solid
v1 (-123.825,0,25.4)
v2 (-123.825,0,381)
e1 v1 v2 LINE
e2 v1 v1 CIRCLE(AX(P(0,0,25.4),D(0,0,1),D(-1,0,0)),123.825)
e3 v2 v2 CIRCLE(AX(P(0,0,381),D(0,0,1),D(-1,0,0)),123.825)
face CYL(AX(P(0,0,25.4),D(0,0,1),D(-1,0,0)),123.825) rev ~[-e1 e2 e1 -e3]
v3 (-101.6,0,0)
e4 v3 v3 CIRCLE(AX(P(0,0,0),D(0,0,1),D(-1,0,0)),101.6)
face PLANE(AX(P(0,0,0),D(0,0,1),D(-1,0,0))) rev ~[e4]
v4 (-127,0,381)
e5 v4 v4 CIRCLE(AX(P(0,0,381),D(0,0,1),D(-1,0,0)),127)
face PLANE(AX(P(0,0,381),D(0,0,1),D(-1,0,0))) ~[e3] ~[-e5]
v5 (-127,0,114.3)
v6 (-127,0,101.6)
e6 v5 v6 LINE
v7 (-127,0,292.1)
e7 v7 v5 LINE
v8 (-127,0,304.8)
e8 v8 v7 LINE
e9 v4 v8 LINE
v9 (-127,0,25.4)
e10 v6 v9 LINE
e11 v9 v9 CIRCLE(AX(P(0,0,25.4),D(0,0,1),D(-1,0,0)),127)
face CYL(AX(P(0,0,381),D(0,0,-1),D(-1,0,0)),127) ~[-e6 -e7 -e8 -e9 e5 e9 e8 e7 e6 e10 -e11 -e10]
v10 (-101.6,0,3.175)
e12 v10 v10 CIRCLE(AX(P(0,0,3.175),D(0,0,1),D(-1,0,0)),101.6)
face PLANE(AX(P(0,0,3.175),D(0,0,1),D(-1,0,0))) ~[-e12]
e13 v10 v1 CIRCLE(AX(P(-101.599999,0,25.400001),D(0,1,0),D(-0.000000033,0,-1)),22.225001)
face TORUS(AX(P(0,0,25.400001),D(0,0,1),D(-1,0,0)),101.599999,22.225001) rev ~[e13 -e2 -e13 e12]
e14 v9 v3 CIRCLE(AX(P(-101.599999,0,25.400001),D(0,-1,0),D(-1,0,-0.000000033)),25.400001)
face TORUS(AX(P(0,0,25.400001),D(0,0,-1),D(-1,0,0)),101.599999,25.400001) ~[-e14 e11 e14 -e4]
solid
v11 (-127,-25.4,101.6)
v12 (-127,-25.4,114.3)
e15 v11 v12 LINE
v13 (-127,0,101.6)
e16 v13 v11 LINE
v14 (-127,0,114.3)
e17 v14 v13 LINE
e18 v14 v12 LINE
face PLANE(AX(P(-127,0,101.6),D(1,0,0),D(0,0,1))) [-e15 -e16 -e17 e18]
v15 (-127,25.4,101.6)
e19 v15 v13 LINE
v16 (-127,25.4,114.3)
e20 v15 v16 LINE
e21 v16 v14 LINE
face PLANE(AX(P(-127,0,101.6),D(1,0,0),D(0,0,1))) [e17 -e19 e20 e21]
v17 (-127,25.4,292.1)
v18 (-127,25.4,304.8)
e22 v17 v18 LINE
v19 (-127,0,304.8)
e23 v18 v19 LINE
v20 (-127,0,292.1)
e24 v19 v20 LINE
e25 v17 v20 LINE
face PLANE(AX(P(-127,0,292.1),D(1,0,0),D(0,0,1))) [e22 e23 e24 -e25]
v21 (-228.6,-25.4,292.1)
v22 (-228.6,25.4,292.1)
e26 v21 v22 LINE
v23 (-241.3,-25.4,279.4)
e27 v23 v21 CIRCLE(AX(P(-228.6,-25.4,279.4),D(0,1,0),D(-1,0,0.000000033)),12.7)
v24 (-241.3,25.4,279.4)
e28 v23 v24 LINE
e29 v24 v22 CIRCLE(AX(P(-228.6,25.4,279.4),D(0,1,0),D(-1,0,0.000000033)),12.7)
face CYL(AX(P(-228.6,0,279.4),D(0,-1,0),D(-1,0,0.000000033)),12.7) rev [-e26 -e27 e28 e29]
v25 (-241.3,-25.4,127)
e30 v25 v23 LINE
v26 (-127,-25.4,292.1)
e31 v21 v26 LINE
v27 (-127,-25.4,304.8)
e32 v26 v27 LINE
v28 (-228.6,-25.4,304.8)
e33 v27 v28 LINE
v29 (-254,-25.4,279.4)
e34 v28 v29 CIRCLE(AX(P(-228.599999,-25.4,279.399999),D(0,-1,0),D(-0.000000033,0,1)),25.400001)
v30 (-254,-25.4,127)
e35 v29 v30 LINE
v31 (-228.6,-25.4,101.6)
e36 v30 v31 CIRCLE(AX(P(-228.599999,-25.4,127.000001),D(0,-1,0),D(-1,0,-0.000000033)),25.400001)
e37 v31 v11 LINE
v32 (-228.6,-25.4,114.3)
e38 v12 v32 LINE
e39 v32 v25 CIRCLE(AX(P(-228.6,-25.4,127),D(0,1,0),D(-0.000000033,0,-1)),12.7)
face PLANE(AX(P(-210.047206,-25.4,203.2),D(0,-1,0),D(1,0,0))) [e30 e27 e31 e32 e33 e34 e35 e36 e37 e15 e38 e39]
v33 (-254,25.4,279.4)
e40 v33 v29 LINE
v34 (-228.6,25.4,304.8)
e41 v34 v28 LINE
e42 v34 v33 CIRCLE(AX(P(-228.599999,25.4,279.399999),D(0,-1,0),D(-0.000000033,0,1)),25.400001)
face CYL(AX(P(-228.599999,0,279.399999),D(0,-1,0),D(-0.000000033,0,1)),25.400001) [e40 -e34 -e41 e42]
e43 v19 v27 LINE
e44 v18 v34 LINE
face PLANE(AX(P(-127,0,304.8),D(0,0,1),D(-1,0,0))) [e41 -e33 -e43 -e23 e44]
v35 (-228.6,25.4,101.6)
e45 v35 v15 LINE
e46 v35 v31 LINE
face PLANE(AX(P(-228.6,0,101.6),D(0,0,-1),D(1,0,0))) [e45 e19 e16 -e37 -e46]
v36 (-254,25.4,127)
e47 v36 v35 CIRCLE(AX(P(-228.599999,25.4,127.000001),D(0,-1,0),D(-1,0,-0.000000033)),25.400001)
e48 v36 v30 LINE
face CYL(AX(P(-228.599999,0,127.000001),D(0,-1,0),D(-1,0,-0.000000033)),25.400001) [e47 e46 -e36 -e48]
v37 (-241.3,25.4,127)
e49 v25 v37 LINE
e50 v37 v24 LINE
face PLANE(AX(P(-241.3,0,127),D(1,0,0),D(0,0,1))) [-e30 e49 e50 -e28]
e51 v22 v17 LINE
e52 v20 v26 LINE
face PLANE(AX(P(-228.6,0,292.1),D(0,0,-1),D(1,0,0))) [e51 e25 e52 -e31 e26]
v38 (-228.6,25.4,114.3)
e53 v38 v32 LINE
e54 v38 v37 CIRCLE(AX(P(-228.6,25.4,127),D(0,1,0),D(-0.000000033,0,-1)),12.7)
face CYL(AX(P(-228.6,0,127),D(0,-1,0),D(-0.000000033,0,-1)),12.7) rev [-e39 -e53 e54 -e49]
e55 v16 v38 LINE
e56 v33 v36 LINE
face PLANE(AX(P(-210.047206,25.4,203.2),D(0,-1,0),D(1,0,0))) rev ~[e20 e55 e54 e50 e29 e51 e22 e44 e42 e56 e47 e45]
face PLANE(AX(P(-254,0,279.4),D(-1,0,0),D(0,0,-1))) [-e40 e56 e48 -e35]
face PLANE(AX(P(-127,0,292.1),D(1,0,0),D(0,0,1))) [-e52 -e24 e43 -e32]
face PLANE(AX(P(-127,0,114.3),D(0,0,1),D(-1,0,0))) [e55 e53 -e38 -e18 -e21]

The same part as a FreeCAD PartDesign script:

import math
import FreeCAD as App
import Part
import Sketcher
from FreeCAD import Vector
Q = App.Units.Quantity

doc = App.newDocument("Part")
body = doc.addObject("PartDesign::Body", "Body")
body.AllowCompound = True

# Sketch on XZ plane
sketch1 = doc.addObject("Sketcher::SketchObject", "Sketch")
body.addObject(sketch1)
sketch1.AttachmentSupport = (doc.XZ_Plane, [""])
sketch1.MapMode = "FlatFace"
sketch1.addGeometry([
    Part.LineSegment(Vector(-101.6, 0, 0), Vector(0, 0, 0)),  # 0
    Part.LineSegment(Vector(0, 0, 0), Vector(0, 3.2, 0)),  # 1
    Part.LineSegment(Vector(0, 3.2, 0), Vector(-101.6, 3.2, 0)),  # 2
    Part.ArcOfCircle(Part.Circle(Vector(-101.6, 25.4, 0), Vector(0, 0, 1), 22.2), math.radians(-180), math.radians(-90)),  # 3
    Part.LineSegment(Vector(-123.8, 25.4, 0), Vector(-123.8, 381, 0)),  # 4
    Part.LineSegment(Vector(-123.8, 381, 0), Vector(-127, 381, 0)),  # 5
    Part.LineSegment(Vector(-127, 381, 0), Vector(-127, 25.4, 0)),  # 6
    Part.ArcOfCircle(Part.Circle(Vector(-101.6, 25.4, 0), Vector(0, 0, 1), 25.4), math.radians(-180), math.radians(-90)),  # 7
], False)
sketch1.addConstraint([
    Sketcher.Constraint("Coincident", 0, 2, 1, 1),
    Sketcher.Constraint("Coincident", 1, 2, 2, 1),
    Sketcher.Constraint("Tangent", 2, 2, 3, 2),
    Sketcher.Constraint("Tangent", 3, 1, 4, 1),
    Sketcher.Constraint("Coincident", 4, 2, 5, 1),
    Sketcher.Constraint("Coincident", 5, 2, 6, 1),
    Sketcher.Constraint("Tangent", 6, 2, 7, 1),
    Sketcher.Constraint("Tangent", 7, 2, 0, 1),
    Sketcher.Constraint("Horizontal", 0),
    Sketcher.Constraint("Vertical", 1),
    Sketcher.Constraint("Horizontal", 2),
    Sketcher.Constraint("Vertical", 4),
    Sketcher.Constraint("Horizontal", 5),
    Sketcher.Constraint("Vertical", 6),
    Sketcher.Constraint("Coincident", 0, 2, -1, 1),
    Sketcher.Constraint("Coincident", 7, 3, 3, 3),
    Sketcher.Constraint("Radius", 7, Q("1 in")),
    Sketcher.Constraint("DistanceX", 0, 1, 0, 2, Q("4 in")),
    Sketcher.Constraint("DistanceY", 4, 1, 4, 2, Q("14 in")),
    Sketcher.Constraint("Radius", 3, Q("0.875 in")),
])
revolution = doc.addObject("PartDesign::Revolution", "Revolution")
body.addObject(revolution)
revolution.Profile = sketch1
revolution.ReferenceAxis = (sketch1, ["V_Axis"])
revolution.Angle = 360

# Sketch on XZ plane
sketch2 = doc.addObject("Sketcher::SketchObject", "Sketch001")
body.addObject(sketch2)
sketch2.AttachmentSupport = (doc.XZ_Plane, [""])
sketch2.MapMode = "FlatFace"
sketch2.addGeometry([
    Part.LineSegment(Vector(-229, 292, 0), Vector(-127, 292, 0)),  # 0
    Part.LineSegment(Vector(-127, 292, 0), Vector(-127, 305, 0)),  # 1
    Part.LineSegment(Vector(-127, 305, 0), Vector(-229, 305, 0)),  # 2
    Part.ArcOfCircle(Part.Circle(Vector(-229, 279, 0), Vector(0, 0, 1), 25), math.radians(90), math.radians(180)),  # 3
    Part.LineSegment(Vector(-254, 279, 0), Vector(-254, 127, 0)),  # 4
    Part.ArcOfCircle(Part.Circle(Vector(-229, 127, 0), Vector(0, 0, 1), 25), math.radians(-180), math.radians(-90)),  # 5
    Part.LineSegment(Vector(-229, 102, 0), Vector(-127, 102, 0)),  # 6
    Part.LineSegment(Vector(-127, 102, 0), Vector(-127, 114, 0)),  # 7
    Part.LineSegment(Vector(-127, 114, 0), Vector(-229, 114, 0)),  # 8
    Part.ArcOfCircle(Part.Circle(Vector(-229, 127, 0), Vector(0, 0, 1), 13), math.radians(-180), math.radians(-90)),  # 9
    Part.LineSegment(Vector(-241, 127, 0), Vector(-241, 279, 0)),  # 10
    Part.ArcOfCircle(Part.Circle(Vector(-229, 279, 0), Vector(0, 0, 1), 13), math.radians(90), math.radians(180)),  # 11
], False)
sketch2.addConstraint([
    Sketcher.Constraint("Coincident", 0, 2, 1, 1),
    Sketcher.Constraint("Coincident", 1, 2, 2, 1),
    Sketcher.Constraint("Tangent", 2, 2, 3, 1),
    Sketcher.Constraint("Tangent", 3, 2, 4, 1),
    Sketcher.Constraint("Tangent", 4, 2, 5, 1),
    Sketcher.Constraint("Tangent", 5, 2, 6, 1),
    Sketcher.Constraint("Coincident", 6, 2, 7, 1),
    Sketcher.Constraint("Coincident", 7, 2, 8, 1),
    Sketcher.Constraint("Tangent", 8, 2, 9, 2),
    Sketcher.Constraint("Tangent", 9, 1, 10, 1),
    Sketcher.Constraint("Tangent", 10, 2, 11, 2),
    Sketcher.Constraint("Tangent", 11, 1, 0, 1),
    Sketcher.Constraint("Horizontal", 0),
    Sketcher.Constraint("Vertical", 1),
    Sketcher.Constraint("Horizontal", 2),
    Sketcher.Constraint("Vertical", 4),
    Sketcher.Constraint("Horizontal", 6),
    Sketcher.Constraint("Vertical", 7),
    Sketcher.Constraint("Horizontal", 8),
    Sketcher.Constraint("Vertical", 10),
    Sketcher.Constraint("Coincident", 9, 3, 5, 3),
    Sketcher.Constraint("Coincident", 11, 3, 3, 3),
    Sketcher.Constraint("Equal", 3, 5),
    Sketcher.Constraint("Vertical", 1, 2, 6, 2),
    Sketcher.Constraint("Radius", 3, Q("1 in")),
    Sketcher.Constraint("Radius", 9, Q("0.5 in")),
    Sketcher.Constraint("DistanceX", 0, 1, 0, 2, Q("4 in")),
    Sketcher.Constraint("DistanceY", 4, 2, 4, 1, Q("6 in")),
    Sketcher.Constraint("DistanceX", 3, 3, -1, 1, Q("9 in")),
    Sketcher.Constraint("DistanceY", -1, 1, 3, 3, Q("11 in")),
])
pad1 = doc.addObject("PartDesign::Pad", "Pad")
body.addObject(pad1)
pad1.Profile = sketch2
pad1.Length = Q("2 in")
pad1.Midplane = True

doc.recompute()
